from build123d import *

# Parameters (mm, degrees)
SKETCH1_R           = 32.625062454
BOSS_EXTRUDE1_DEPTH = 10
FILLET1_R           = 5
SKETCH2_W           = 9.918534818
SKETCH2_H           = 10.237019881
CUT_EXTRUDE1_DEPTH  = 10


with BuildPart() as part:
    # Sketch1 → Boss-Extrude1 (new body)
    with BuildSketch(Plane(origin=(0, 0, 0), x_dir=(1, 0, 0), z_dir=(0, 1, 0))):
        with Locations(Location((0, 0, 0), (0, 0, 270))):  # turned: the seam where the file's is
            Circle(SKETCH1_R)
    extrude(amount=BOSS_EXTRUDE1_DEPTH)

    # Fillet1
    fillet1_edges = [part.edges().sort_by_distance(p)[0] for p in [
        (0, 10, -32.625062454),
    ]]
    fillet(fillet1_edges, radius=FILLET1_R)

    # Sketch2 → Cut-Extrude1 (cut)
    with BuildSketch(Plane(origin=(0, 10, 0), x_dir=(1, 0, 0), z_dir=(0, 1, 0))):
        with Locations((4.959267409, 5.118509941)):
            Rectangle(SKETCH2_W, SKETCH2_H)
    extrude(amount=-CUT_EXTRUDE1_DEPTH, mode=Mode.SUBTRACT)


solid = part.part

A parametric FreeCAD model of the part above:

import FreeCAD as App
import Part
import Sketcher

V = App.Vector
Q = App.Units.Quantity


def edges_at(feature, points):
    """Names of the edges that pass closest to the given points."""
    edges = feature.Shape.Edges
    near = lambda p: min(range(len(edges)), key=lambda i: edges[i].distToShape(Part.Vertex(*p))[0])
    return sorted({f"Edge{near(p) + 1}" for p in points})

doc = App.newDocument("Part")
body = doc.addObject("PartDesign::Body", "Body")

sketch1 = body.newObject("Sketcher::SketchObject", "Sketch")
sketch1.AttachmentSupport = (doc.getObject("XZ_Plane"), [""])
sketch1.MapMode = "FlatFace"
sketch1.addGeometry(Part.Circle(V(0, 0, 0), V(0, 0, 1), 33), False)
sketch1.addConstraint([
    Sketcher.Constraint("Coincident", 0, 3, -1, 1),
    Sketcher.Constraint("Diameter", 0, Q("65.250125 mm")),
])
pad1 = body.newObject("PartDesign::Pad", "Pad")
pad1.Profile = sketch1
pad1.Length = 10
pad1.Reversed = True
doc.recompute()

fillet = body.newObject("PartDesign::Fillet", "Fillet")
fillet.Base = (pad1, edges_at(pad1, [(0, 10, -32.625)]))
fillet.Radius = 5

sketch2 = body.newObject("Sketcher::SketchObject", "Sketch001")
sketch2.AttachmentSupport = (doc.getObject("XZ_Plane"), [""])
sketch2.MapMode = "FlatFace"
sketch2.AttachmentOffset = App.Placement(V(0, 0, -10), App.Rotation())
sketch2.addGeometry([
    Part.LineSegment(V(0, -10, 0), V(0, 0, 0)),
    Part.LineSegment(V(0, 0, 0), V(10, 0, 0)),
    Part.LineSegment(V(10, 0, 0), V(10, -10, 0)),
    Part.LineSegment(V(10, -10, 0), V(0, -10, 0)),
], False)
sketch2.addConstraint([
    Sketcher.Constraint("Coincident", 0, 2, 1, 1),
    Sketcher.Constraint("Coincident", 1, 2, 2, 1),
    Sketcher.Constraint("Coincident", 2, 2, 3, 1),
    Sketcher.Constraint("Coincident", 3, 2, 0, 1),
    Sketcher.Constraint("Vertical", 0),
    Sketcher.Constraint("Horizontal", 1),
    Sketcher.Constraint("Vertical", 2),
    Sketcher.Constraint("Horizontal", 3),
    Sketcher.Constraint("Coincident", 0, 2, -1, 1),
    Sketcher.Constraint("DistanceY", 0, 1, 0, 2, Q("10.23702 mm")),
    Sketcher.Constraint("DistanceX", 1, 1, 1, 2, Q("9.918535 mm")),
])
pocket1 = body.newObject("PartDesign::Pocket", "Pocket")
pocket1.Profile = sketch2
pocket1.Length = 10
pocket1.Reversed = True

doc.recompute()
